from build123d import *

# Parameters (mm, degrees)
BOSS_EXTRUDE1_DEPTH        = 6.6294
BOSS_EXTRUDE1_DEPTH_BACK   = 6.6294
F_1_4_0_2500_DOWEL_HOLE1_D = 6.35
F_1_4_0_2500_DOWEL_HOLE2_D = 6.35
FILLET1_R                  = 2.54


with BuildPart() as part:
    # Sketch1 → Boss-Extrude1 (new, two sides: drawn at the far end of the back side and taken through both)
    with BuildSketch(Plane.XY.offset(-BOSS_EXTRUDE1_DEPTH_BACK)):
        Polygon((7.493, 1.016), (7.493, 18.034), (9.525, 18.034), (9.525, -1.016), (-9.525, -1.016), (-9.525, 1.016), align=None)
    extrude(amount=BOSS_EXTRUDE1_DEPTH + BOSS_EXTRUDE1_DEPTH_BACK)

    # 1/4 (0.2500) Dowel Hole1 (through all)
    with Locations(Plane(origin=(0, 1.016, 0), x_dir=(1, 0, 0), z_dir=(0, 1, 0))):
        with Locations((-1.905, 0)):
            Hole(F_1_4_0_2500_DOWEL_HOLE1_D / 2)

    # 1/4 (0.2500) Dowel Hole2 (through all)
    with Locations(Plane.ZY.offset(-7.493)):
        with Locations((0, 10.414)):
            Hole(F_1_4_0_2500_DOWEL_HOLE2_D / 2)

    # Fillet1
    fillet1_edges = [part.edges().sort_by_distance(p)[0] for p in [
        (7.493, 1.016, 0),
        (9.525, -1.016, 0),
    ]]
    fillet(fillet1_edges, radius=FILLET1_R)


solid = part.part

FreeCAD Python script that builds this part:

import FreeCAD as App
import Part
import Sketcher
from FreeCAD import Vector
Q = App.Units.Quantity


def edges_at(feature, points):
    """Names of the edges that pass closest to the given points."""
    edges = feature.Shape.Edges
    near = lambda p: min(range(len(edges)), key=lambda i: edges[i].distToShape(Part.Vertex(*p))[0])
    return sorted({f"Edge{near(p) + 1}" for p in points})


def add_polygon(sketch, points):
    """Adds a closed chain of lines whose ends are joined by coincident constraints."""
    first, n = sketch.GeometryCount, len(points)
    for a, b in zip(points, points[1:] + points[:1]):
        sketch.addGeometry(Part.LineSegment(App.Vector(*a, 0), App.Vector(*b, 0)), False)
    for i in range(n):
        sketch.addConstraint(Sketcher.Constraint("Coincident", first + i, 2, first + (i + 1) % n, 1))

doc = App.newDocument("Part")
body = doc.addObject("PartDesign::Body", "Body")

# Sketch on XY plane
sketch1 = doc.addObject("Sketcher::SketchObject", "Sketch")
body.addObject(sketch1)
sketch1.AttachmentSupport = (doc.XY_Plane, [""])
sketch1.MapMode = "FlatFace"
add_polygon(sketch1, [(7.5, 18), (7.5, 1), (-9.5, 1), (-9.5, -1), (9.5, -1), (9.5, 18)])  # lines 0-5
sketch1.addConstraint([
    Sketcher.Constraint("Vertical", 0),
    Sketcher.Constraint("Horizontal", 1),
    Sketcher.Constraint("Vertical", 2),
    Sketcher.Constraint("Horizontal", 3),
    Sketcher.Constraint("Vertical", 4),
    Sketcher.Constraint("Horizontal", 5),
    Sketcher.Constraint("Symmetric", 1, 2, 3, 2, -1, 1),
    Sketcher.Constraint("Equal", 1, 0),
    Sketcher.Constraint("Equal", 5, 2),
    Sketcher.Constraint("DistanceX", 1, 2, 1, 1, Q("0.67 in")),
    Sketcher.Constraint("DistanceX", 3, 1, 3, 2, Q("0.75 in")),
])
pad1 = doc.addObject("PartDesign::Pad", "Pad")
body.addObject(pad1)
pad1.Profile = sketch1
pad1.Type = "TwoLengths"
pad1.Length = Q("0.261 in")
pad1.Length2 = Q("0.261 in")

# Sketch on XZ plane
sketch2 = doc.addObject("Sketcher::SketchObject", "Sketch001")
body.addObject(sketch2)
sketch2.AttachmentSupport = (doc.XZ_Plane, [""])
sketch2.MapMode = "FlatFace"
sketch2.AttachmentOffset = App.Placement(Vector(0, 0, -0.04 * 25.4), App.Rotation())
sketch2.addGeometry(Part.Circle(Vector(-1.9, 0, 0), Vector(0, 0, 1), 3.2), False)
sketch2.addConstraint([
    Sketcher.Constraint("PointOnObject", 0, 3, -1),
    Sketcher.Constraint("Diameter", 0, Q("0.25 in")),
    Sketcher.Constraint("DistanceX", 0, 3, -1, 1, Q("0.075 in")),
])
doc.recompute()
hole = doc.addObject("PartDesign::Hole", "Hole")
body.addObject(hole)
hole.Profile = sketch2
hole.ThreadType = "None"
hole.Diameter = Q("0.25 in")
hole.DepthType = "ThroughAll"
hole.Reversed = True

# Sketch on YZ plane
sketch3 = doc.addObject("Sketcher::SketchObject", "Sketch002")
body.addObject(sketch3)
sketch3.AttachmentSupport = (doc.YZ_Plane, [""])
sketch3.MapMode = "FlatFace"
sketch3.AttachmentOffset = App.Placement(Vector(0, 0, 0.295 * 25.4), App.Rotation())
sketch3.addGeometry(Part.Circle(Vector(10.4, 0, 0), Vector(0, 0, 1), 3.2), False)
sketch3.addConstraint([
    Sketcher.Constraint("PointOnObject", 0, 3, -1),
    Sketcher.Constraint("Diameter", 0, Q("0.25 in")),
    Sketcher.Constraint("DistanceX", -1, 1, 0, 3, Q("0.41 in")),
])
doc.recompute()
hole2 = doc.addObject("PartDesign::Hole", "Hole001")
body.addObject(hole2)
hole2.Profile = sketch3
hole2.ThreadType = "None"
hole2.Diameter = Q("0.25 in")
hole2.DepthType = "ThroughAll"
hole2.Reversed = True
doc.recompute()

fillet = doc.addObject("PartDesign::Fillet", "Fillet")
body.addObject(fillet)
fillet.Base = (hole2, edges_at(hole2, [(7.493, 1.016, 0), (9.525, -1.016, 0)]))
fillet.Radius = Q("0.1 in")

doc.recompute()
